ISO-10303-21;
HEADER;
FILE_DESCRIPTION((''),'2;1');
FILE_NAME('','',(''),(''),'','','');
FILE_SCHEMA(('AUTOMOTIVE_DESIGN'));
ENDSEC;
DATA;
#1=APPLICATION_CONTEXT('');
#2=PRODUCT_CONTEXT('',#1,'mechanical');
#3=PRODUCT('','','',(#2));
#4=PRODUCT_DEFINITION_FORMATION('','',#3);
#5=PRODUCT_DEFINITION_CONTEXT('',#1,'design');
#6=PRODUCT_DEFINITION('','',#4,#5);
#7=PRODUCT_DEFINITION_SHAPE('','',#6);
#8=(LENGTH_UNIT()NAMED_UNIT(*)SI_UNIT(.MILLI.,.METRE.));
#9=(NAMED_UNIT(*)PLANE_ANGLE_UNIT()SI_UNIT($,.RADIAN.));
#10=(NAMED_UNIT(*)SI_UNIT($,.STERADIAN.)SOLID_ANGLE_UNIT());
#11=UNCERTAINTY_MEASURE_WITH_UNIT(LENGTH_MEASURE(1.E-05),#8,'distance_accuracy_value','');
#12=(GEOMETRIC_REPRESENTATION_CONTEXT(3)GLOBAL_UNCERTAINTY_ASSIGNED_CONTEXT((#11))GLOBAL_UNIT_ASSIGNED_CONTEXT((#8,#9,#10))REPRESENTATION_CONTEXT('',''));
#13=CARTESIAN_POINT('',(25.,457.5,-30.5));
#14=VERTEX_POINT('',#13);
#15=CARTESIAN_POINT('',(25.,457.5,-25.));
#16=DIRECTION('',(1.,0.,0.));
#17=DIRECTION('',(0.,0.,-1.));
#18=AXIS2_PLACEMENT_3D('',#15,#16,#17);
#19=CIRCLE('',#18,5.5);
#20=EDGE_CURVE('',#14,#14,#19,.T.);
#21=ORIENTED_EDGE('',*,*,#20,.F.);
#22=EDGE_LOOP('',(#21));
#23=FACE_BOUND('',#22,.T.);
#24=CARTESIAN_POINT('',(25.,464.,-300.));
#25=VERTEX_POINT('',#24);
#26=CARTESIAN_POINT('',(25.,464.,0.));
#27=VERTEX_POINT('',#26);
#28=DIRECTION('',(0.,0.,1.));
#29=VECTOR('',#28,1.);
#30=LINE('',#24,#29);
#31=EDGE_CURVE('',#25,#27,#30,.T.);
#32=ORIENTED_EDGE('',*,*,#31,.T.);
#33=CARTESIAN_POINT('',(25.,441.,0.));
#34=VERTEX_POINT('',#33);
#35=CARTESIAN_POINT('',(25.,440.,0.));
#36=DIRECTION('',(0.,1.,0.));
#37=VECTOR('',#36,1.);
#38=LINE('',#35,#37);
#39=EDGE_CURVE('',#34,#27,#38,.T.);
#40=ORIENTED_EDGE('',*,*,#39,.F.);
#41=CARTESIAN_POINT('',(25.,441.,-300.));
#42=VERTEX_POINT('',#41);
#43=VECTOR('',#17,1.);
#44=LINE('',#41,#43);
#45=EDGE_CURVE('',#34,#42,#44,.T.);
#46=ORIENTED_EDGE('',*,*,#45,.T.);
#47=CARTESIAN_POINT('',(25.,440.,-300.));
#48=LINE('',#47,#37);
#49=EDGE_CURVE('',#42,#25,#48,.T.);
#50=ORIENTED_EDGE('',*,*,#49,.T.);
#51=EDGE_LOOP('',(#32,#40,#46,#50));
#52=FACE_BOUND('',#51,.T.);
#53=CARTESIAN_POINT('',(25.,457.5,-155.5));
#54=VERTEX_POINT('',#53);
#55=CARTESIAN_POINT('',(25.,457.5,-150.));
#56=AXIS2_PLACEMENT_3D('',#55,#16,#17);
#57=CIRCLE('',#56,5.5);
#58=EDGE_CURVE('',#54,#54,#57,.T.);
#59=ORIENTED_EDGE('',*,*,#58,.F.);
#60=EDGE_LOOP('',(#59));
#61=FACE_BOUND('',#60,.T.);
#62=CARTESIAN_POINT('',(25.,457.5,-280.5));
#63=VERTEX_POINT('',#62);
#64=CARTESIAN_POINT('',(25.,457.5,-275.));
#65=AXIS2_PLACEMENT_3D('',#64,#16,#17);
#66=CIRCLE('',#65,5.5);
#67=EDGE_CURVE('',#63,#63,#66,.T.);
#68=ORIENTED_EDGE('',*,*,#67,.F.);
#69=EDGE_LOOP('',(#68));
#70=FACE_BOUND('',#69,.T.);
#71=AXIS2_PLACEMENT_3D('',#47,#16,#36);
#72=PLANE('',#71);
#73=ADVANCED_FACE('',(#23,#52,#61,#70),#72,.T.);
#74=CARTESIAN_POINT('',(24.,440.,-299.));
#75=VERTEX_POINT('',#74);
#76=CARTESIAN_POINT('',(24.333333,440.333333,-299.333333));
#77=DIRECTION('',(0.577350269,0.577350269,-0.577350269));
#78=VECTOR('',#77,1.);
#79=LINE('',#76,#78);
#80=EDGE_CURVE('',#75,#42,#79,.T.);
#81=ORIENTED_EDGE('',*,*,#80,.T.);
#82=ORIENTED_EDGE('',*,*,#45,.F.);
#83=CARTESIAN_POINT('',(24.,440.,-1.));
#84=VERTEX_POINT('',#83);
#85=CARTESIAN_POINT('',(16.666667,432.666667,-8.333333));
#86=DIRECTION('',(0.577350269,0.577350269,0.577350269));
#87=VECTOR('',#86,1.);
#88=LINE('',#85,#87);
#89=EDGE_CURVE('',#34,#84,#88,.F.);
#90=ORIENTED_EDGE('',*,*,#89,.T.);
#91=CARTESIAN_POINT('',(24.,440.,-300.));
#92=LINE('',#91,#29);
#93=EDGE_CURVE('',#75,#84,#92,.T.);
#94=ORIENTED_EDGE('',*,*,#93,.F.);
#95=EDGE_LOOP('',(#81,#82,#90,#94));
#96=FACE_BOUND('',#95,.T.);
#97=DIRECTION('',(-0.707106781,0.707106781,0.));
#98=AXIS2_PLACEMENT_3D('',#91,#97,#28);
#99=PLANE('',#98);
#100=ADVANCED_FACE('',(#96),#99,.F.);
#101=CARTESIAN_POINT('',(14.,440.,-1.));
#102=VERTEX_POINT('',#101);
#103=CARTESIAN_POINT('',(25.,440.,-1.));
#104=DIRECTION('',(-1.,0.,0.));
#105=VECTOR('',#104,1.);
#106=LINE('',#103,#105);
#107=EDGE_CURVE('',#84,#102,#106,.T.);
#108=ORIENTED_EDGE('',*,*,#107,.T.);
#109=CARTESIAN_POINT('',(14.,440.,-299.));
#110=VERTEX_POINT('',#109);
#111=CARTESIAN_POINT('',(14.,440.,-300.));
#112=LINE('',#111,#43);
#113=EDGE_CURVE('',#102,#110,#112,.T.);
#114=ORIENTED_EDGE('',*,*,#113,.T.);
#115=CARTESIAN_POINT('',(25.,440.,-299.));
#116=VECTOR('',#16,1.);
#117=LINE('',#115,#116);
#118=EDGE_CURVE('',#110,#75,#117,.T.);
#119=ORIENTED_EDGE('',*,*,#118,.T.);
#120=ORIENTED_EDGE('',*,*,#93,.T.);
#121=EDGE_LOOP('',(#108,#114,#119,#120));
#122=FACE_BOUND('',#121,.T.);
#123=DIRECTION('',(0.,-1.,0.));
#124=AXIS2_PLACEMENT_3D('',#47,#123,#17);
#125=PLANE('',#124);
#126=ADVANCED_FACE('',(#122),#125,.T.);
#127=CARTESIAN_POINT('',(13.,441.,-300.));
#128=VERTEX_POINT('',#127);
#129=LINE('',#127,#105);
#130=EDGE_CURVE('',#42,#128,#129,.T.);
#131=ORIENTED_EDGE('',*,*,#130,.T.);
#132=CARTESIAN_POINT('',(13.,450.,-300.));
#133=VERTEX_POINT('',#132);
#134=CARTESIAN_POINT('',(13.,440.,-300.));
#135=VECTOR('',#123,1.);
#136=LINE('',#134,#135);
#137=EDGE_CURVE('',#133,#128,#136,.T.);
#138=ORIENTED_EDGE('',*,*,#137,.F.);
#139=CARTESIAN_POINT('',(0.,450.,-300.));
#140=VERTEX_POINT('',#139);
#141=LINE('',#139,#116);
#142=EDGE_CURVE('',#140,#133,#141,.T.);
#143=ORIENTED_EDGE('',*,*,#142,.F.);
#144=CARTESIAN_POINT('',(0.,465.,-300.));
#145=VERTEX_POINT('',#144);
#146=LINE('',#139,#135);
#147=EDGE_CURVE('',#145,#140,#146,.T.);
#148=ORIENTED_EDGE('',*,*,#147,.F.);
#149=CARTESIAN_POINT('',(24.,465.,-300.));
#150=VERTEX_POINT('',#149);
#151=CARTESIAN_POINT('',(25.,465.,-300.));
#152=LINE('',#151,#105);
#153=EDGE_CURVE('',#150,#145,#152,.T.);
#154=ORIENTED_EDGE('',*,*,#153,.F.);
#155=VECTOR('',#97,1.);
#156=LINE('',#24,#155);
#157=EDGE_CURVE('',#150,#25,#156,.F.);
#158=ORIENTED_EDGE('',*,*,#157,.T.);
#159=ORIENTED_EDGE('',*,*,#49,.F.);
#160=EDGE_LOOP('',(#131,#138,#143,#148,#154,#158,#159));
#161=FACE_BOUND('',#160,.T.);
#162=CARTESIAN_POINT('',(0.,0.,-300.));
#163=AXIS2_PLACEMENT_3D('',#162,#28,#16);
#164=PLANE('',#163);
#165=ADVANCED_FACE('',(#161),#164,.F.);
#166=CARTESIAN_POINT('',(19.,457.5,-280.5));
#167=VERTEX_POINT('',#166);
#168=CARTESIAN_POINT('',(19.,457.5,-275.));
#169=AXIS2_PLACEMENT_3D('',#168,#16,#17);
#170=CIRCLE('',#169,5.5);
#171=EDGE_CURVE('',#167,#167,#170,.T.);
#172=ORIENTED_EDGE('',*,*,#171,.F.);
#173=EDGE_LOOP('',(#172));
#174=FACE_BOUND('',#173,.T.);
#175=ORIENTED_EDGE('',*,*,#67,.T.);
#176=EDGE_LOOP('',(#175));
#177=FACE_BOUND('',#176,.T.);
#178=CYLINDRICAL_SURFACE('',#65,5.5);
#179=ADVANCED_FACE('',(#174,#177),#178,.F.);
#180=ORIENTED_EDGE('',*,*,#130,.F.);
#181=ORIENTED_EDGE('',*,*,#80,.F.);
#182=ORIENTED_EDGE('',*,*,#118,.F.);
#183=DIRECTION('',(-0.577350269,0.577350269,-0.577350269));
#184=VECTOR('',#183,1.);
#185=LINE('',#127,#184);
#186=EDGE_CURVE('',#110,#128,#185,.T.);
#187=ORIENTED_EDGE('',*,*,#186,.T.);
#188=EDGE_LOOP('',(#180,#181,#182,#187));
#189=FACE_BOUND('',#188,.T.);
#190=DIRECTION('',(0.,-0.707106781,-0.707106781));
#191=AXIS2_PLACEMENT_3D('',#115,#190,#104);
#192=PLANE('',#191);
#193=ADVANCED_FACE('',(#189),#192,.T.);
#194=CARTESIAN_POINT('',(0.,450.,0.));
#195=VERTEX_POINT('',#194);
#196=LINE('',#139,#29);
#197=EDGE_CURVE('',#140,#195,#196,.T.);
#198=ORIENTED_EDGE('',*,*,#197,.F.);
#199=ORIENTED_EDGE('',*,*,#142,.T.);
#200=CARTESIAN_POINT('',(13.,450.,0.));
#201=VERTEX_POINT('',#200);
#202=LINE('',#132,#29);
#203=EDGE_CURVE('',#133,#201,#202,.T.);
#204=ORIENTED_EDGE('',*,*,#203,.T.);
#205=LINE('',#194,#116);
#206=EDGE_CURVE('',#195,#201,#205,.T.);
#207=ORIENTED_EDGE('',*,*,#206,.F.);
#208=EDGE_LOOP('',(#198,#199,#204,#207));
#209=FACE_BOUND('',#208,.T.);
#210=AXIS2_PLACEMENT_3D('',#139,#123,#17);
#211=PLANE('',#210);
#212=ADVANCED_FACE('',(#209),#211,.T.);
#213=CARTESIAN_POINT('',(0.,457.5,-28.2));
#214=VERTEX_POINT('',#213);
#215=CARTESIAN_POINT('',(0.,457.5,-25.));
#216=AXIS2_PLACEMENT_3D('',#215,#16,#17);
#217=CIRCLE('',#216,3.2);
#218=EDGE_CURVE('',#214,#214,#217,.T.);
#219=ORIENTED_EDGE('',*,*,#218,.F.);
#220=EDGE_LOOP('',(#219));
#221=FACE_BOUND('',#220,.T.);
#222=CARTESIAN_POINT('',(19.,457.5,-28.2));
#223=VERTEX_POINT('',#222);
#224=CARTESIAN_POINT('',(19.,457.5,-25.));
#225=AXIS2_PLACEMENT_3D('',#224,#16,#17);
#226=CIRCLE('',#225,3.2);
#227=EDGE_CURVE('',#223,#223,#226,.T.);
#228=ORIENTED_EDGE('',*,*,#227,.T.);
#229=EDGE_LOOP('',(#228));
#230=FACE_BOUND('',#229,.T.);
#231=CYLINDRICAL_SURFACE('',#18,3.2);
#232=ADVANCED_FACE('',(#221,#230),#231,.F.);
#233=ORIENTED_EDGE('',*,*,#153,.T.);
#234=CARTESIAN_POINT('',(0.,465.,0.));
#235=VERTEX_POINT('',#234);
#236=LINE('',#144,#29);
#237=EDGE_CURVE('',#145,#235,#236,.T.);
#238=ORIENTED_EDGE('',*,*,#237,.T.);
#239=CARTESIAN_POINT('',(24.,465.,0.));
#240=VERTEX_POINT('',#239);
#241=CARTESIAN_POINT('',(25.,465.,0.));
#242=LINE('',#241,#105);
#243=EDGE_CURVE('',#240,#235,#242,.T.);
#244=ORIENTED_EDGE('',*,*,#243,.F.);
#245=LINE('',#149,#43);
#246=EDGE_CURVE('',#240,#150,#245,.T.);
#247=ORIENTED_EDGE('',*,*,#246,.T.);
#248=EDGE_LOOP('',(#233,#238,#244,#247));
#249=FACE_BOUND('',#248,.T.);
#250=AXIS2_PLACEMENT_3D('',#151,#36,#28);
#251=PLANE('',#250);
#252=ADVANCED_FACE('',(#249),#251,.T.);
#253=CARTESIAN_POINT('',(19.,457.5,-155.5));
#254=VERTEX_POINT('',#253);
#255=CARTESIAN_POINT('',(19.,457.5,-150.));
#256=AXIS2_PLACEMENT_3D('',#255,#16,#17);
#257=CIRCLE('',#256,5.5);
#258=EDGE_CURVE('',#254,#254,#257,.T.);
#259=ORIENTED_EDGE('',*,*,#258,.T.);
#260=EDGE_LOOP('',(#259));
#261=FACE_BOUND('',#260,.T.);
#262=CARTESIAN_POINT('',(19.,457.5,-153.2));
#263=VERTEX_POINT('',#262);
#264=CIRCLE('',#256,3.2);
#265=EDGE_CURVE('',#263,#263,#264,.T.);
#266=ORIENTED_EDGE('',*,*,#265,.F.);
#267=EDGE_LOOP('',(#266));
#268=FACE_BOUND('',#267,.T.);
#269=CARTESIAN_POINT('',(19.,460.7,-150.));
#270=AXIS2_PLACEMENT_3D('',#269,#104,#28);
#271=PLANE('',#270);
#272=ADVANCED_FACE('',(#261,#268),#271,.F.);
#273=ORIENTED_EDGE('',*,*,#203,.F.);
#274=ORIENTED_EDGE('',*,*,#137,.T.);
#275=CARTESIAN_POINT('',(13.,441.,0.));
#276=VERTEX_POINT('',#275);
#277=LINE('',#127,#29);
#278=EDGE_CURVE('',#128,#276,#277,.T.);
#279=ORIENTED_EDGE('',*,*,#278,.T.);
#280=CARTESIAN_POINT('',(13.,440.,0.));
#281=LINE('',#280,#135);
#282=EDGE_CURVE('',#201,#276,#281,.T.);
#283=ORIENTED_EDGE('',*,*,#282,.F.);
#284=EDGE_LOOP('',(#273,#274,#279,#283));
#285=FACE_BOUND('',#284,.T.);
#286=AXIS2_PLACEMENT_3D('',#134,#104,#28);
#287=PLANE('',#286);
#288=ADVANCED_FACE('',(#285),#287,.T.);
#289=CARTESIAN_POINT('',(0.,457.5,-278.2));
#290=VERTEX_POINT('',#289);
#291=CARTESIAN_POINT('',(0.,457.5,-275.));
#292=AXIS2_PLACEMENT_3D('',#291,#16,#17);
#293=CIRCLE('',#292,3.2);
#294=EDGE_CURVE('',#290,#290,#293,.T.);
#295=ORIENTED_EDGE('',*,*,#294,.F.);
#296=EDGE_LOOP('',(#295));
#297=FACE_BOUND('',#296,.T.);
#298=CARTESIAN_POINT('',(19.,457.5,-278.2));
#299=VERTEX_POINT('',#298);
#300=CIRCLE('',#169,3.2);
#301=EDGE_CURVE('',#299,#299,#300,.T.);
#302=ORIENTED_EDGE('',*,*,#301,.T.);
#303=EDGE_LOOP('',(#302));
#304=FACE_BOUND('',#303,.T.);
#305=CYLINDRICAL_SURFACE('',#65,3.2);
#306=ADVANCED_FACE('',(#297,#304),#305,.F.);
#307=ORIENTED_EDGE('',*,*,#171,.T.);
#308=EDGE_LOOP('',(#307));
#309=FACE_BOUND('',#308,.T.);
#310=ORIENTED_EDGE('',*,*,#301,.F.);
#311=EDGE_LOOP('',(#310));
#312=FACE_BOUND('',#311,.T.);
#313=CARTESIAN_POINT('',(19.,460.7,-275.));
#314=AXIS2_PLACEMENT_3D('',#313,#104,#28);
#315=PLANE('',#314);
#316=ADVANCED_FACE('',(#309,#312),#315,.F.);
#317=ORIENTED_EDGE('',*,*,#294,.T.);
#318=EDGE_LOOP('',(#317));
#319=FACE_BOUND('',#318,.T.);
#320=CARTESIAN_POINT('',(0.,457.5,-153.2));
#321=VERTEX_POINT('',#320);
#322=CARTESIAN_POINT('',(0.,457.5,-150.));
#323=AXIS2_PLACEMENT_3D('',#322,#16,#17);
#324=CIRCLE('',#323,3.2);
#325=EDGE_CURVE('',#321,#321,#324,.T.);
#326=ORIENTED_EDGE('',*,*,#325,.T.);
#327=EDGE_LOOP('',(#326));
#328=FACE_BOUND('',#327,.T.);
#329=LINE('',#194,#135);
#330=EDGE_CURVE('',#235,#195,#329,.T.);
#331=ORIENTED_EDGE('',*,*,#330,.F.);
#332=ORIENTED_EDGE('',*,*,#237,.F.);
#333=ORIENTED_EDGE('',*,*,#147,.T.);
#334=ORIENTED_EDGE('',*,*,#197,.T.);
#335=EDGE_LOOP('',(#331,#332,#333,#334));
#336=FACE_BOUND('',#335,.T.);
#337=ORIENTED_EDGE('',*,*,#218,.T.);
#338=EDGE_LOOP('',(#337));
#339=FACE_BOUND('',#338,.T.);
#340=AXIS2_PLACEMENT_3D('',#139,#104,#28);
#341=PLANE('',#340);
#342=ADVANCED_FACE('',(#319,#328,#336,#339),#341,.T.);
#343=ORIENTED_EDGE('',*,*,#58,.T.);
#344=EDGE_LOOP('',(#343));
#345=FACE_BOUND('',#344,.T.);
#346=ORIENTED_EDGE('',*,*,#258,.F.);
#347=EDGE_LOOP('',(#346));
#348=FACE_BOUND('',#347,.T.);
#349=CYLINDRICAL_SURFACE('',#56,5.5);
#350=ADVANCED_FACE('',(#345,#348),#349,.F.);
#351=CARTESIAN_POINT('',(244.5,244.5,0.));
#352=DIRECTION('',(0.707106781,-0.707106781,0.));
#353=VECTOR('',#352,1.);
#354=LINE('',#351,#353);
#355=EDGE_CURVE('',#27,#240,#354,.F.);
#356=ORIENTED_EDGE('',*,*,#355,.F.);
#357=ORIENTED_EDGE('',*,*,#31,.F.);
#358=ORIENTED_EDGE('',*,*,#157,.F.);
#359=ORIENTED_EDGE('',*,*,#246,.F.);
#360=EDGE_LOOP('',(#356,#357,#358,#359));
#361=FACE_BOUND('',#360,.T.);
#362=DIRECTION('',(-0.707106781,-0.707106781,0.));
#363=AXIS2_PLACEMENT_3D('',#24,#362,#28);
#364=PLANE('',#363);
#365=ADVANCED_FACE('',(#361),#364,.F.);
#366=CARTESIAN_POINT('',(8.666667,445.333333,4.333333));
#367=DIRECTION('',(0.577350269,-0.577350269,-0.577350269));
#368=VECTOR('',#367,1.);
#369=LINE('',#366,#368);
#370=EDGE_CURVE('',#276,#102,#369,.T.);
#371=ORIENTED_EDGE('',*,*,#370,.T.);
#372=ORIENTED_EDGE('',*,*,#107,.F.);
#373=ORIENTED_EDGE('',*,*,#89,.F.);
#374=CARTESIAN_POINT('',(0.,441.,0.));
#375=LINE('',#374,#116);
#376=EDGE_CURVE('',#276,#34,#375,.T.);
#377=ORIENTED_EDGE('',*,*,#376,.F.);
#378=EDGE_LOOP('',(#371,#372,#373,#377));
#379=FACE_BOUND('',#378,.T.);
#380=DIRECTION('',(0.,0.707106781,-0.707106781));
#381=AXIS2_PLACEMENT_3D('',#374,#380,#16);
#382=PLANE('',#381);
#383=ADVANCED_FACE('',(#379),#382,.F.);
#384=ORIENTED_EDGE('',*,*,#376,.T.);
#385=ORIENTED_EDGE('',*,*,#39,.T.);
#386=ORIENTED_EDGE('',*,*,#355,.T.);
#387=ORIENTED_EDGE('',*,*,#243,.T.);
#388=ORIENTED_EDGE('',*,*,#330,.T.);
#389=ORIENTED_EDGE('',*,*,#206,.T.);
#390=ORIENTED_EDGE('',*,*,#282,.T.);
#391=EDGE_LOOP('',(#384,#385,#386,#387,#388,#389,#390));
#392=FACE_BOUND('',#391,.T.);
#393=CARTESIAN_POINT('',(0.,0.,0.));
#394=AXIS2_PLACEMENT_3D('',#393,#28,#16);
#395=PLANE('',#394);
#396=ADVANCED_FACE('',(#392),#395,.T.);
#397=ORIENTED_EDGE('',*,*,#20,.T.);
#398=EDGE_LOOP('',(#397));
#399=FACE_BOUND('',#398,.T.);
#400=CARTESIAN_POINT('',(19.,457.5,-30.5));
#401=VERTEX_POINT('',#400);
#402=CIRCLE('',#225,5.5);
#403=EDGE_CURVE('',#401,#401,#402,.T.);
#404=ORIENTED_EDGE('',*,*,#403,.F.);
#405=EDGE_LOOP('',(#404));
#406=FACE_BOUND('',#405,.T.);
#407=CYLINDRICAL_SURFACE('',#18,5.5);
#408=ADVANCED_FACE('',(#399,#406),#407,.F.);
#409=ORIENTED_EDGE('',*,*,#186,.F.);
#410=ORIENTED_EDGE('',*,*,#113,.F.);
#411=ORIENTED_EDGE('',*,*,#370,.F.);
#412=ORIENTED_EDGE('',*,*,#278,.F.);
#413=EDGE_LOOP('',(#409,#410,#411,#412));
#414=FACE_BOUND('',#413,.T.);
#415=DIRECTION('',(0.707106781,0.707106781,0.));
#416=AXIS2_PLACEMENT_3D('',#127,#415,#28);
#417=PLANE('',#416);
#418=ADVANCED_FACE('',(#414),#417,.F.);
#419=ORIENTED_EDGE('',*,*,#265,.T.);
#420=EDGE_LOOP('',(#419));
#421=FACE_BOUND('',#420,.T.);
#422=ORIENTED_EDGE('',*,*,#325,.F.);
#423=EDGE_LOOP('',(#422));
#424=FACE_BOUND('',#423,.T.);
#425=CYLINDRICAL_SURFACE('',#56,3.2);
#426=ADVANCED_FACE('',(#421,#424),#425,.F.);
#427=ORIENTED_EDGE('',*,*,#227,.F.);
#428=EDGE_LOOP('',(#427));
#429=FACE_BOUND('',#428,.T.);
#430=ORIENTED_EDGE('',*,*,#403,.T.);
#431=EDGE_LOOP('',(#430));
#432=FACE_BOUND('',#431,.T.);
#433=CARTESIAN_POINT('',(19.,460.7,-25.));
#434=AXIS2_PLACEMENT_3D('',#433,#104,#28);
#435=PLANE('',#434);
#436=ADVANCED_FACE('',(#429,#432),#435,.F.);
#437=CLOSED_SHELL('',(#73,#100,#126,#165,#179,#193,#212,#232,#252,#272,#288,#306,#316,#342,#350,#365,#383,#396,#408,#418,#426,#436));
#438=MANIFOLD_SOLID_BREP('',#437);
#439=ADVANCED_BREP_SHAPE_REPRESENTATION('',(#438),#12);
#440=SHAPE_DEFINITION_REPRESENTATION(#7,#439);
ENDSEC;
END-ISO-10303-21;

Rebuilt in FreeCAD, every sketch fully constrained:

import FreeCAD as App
import Part
import Sketcher
from FreeCAD import Vector
Q = App.Units.Quantity


def edges_at(feature, points):
    """Names of the edges that pass closest to the given points."""
    edges = feature.Shape.Edges
    near = lambda p: min(range(len(edges)), key=lambda i: edges[i].distToShape(Part.Vertex(*p))[0])
    return sorted({f"Edge{near(p) + 1}" for p in points})


def add_polygon(sketch, points):
    """Adds a closed chain of lines whose ends are joined by coincident constraints."""
    first, n = sketch.GeometryCount, len(points)
    for a, b in zip(points, points[1:] + points[:1]):
        sketch.addGeometry(Part.LineSegment(App.Vector(*a, 0), App.Vector(*b, 0)), False)
    for i in range(n):
        sketch.addConstraint(Sketcher.Constraint("Coincident", first + i, 2, first + (i + 1) % n, 1))

doc = App.newDocument("Part")
body = doc.addObject("PartDesign::Body", "Body")

# Sketch on XY plane
sketch1 = body.newObject("Sketcher::SketchObject", "Sketch")
sketch1.AttachmentSupport = (doc.getObject("XY_Plane"), [""])
sketch1.MapMode = "FlatFace"
add_polygon(sketch1, [(13, 440), (25, 440), (25, 465), (0, 465), (0, 450), (13, 450)])  # lines 0-5
sketch1.addConstraint([
    Sketcher.Constraint("Horizontal", 0),
    Sketcher.Constraint("Vertical", 1),
    Sketcher.Constraint("Horizontal", 2),
    Sketcher.Constraint("Vertical", 3),
    Sketcher.Constraint("Horizontal", 4),
    Sketcher.Constraint("Vertical", 5),
    Sketcher.Constraint("PointOnObject", 2, 2, -2),
    Sketcher.Constraint("Equal", 2, 1),
    Sketcher.Constraint("DistanceX", 0, 1, 0, 2, Q("12 mm")),
    Sketcher.Constraint("DistanceX", 2, 2, 2, 1, Q("25 mm")),
    Sketcher.Constraint("DistanceY", 3, 2, 3, 1, Q("15 mm")),
    Sketcher.Constraint("DistanceY", -1, 1, 0, 2, Q("440 mm")),
])
pad1 = body.newObject("PartDesign::Pad", "Pad")
pad1.Profile = sketch1
pad1.Length = 300
pad1.Reversed = True

# Sketch on YZ plane
sketch2 = body.newObject("Sketcher::SketchObject", "Sketch001")
sketch2.AttachmentSupport = (doc.getObject("YZ_Plane"), [""])
sketch2.MapMode = "FlatFace"
sketch2.AttachmentOffset = App.Placement(Vector(0, 0, 25), App.Rotation())
sketch2.addGeometry([
    Part.Circle(Vector(457.5, -25, 0), Vector(0, 0, 1), 3.2),
    Part.Circle(Vector(457.5, -275, 0), Vector(0, 0, 1), 3.2),
    Part.Circle(Vector(457.5, -150, 0), Vector(0, 0, 1), 3.2),
], False)
sketch2.addConstraint([
    Sketcher.Constraint("Equal", 0, 1),
    Sketcher.Constraint("Equal", 1, 2),
    Sketcher.Constraint("Vertical", 0, 3, 1, 3),
    Sketcher.Constraint("Vertical", 1, 3, 2, 3),
    Sketcher.Constraint("Diameter", 0, Q("6.4 mm")),
    Sketcher.Constraint("DistanceY", 0, 3, -1, 1, Q("25 mm")),
    Sketcher.Constraint("DistanceY", 1, 3, -1, 1, Q("275 mm")),
    Sketcher.Constraint("DistanceY", 2, 3, -1, 1, Q("150 mm")),
    Sketcher.Constraint("DistanceX", -1, 1, 0, 3, Q("457.5 mm")),
])
doc.recompute()
hole = body.newObject("PartDesign::Hole", "Hole")
hole.Profile = sketch2
hole.ThreadType = "None"
hole.Diameter = 6.4
hole.DepthType = "ThroughAll"
hole.HoleCutType = "Counterbore"
hole.HoleCutDiameter = 11
hole.HoleCutDepth = 6
doc.recompute()

chamfer = body.newObject("PartDesign::Chamfer", "Chamfer")
chamfer.Base = (hole, edges_at(hole, [
    (25, 440, -150),
    (13, 440, -150),
    (19, 440, -300),
    (19, 440, 0),
]))
chamfer.Size = 1
doc.recompute()

chamfer2 = body.newObject("PartDesign::Chamfer", "Chamfer001")
chamfer2.Base = (chamfer, edges_at(chamfer, [(25, 465, -150)]))
chamfer2.Size = 1

doc.recompute()
